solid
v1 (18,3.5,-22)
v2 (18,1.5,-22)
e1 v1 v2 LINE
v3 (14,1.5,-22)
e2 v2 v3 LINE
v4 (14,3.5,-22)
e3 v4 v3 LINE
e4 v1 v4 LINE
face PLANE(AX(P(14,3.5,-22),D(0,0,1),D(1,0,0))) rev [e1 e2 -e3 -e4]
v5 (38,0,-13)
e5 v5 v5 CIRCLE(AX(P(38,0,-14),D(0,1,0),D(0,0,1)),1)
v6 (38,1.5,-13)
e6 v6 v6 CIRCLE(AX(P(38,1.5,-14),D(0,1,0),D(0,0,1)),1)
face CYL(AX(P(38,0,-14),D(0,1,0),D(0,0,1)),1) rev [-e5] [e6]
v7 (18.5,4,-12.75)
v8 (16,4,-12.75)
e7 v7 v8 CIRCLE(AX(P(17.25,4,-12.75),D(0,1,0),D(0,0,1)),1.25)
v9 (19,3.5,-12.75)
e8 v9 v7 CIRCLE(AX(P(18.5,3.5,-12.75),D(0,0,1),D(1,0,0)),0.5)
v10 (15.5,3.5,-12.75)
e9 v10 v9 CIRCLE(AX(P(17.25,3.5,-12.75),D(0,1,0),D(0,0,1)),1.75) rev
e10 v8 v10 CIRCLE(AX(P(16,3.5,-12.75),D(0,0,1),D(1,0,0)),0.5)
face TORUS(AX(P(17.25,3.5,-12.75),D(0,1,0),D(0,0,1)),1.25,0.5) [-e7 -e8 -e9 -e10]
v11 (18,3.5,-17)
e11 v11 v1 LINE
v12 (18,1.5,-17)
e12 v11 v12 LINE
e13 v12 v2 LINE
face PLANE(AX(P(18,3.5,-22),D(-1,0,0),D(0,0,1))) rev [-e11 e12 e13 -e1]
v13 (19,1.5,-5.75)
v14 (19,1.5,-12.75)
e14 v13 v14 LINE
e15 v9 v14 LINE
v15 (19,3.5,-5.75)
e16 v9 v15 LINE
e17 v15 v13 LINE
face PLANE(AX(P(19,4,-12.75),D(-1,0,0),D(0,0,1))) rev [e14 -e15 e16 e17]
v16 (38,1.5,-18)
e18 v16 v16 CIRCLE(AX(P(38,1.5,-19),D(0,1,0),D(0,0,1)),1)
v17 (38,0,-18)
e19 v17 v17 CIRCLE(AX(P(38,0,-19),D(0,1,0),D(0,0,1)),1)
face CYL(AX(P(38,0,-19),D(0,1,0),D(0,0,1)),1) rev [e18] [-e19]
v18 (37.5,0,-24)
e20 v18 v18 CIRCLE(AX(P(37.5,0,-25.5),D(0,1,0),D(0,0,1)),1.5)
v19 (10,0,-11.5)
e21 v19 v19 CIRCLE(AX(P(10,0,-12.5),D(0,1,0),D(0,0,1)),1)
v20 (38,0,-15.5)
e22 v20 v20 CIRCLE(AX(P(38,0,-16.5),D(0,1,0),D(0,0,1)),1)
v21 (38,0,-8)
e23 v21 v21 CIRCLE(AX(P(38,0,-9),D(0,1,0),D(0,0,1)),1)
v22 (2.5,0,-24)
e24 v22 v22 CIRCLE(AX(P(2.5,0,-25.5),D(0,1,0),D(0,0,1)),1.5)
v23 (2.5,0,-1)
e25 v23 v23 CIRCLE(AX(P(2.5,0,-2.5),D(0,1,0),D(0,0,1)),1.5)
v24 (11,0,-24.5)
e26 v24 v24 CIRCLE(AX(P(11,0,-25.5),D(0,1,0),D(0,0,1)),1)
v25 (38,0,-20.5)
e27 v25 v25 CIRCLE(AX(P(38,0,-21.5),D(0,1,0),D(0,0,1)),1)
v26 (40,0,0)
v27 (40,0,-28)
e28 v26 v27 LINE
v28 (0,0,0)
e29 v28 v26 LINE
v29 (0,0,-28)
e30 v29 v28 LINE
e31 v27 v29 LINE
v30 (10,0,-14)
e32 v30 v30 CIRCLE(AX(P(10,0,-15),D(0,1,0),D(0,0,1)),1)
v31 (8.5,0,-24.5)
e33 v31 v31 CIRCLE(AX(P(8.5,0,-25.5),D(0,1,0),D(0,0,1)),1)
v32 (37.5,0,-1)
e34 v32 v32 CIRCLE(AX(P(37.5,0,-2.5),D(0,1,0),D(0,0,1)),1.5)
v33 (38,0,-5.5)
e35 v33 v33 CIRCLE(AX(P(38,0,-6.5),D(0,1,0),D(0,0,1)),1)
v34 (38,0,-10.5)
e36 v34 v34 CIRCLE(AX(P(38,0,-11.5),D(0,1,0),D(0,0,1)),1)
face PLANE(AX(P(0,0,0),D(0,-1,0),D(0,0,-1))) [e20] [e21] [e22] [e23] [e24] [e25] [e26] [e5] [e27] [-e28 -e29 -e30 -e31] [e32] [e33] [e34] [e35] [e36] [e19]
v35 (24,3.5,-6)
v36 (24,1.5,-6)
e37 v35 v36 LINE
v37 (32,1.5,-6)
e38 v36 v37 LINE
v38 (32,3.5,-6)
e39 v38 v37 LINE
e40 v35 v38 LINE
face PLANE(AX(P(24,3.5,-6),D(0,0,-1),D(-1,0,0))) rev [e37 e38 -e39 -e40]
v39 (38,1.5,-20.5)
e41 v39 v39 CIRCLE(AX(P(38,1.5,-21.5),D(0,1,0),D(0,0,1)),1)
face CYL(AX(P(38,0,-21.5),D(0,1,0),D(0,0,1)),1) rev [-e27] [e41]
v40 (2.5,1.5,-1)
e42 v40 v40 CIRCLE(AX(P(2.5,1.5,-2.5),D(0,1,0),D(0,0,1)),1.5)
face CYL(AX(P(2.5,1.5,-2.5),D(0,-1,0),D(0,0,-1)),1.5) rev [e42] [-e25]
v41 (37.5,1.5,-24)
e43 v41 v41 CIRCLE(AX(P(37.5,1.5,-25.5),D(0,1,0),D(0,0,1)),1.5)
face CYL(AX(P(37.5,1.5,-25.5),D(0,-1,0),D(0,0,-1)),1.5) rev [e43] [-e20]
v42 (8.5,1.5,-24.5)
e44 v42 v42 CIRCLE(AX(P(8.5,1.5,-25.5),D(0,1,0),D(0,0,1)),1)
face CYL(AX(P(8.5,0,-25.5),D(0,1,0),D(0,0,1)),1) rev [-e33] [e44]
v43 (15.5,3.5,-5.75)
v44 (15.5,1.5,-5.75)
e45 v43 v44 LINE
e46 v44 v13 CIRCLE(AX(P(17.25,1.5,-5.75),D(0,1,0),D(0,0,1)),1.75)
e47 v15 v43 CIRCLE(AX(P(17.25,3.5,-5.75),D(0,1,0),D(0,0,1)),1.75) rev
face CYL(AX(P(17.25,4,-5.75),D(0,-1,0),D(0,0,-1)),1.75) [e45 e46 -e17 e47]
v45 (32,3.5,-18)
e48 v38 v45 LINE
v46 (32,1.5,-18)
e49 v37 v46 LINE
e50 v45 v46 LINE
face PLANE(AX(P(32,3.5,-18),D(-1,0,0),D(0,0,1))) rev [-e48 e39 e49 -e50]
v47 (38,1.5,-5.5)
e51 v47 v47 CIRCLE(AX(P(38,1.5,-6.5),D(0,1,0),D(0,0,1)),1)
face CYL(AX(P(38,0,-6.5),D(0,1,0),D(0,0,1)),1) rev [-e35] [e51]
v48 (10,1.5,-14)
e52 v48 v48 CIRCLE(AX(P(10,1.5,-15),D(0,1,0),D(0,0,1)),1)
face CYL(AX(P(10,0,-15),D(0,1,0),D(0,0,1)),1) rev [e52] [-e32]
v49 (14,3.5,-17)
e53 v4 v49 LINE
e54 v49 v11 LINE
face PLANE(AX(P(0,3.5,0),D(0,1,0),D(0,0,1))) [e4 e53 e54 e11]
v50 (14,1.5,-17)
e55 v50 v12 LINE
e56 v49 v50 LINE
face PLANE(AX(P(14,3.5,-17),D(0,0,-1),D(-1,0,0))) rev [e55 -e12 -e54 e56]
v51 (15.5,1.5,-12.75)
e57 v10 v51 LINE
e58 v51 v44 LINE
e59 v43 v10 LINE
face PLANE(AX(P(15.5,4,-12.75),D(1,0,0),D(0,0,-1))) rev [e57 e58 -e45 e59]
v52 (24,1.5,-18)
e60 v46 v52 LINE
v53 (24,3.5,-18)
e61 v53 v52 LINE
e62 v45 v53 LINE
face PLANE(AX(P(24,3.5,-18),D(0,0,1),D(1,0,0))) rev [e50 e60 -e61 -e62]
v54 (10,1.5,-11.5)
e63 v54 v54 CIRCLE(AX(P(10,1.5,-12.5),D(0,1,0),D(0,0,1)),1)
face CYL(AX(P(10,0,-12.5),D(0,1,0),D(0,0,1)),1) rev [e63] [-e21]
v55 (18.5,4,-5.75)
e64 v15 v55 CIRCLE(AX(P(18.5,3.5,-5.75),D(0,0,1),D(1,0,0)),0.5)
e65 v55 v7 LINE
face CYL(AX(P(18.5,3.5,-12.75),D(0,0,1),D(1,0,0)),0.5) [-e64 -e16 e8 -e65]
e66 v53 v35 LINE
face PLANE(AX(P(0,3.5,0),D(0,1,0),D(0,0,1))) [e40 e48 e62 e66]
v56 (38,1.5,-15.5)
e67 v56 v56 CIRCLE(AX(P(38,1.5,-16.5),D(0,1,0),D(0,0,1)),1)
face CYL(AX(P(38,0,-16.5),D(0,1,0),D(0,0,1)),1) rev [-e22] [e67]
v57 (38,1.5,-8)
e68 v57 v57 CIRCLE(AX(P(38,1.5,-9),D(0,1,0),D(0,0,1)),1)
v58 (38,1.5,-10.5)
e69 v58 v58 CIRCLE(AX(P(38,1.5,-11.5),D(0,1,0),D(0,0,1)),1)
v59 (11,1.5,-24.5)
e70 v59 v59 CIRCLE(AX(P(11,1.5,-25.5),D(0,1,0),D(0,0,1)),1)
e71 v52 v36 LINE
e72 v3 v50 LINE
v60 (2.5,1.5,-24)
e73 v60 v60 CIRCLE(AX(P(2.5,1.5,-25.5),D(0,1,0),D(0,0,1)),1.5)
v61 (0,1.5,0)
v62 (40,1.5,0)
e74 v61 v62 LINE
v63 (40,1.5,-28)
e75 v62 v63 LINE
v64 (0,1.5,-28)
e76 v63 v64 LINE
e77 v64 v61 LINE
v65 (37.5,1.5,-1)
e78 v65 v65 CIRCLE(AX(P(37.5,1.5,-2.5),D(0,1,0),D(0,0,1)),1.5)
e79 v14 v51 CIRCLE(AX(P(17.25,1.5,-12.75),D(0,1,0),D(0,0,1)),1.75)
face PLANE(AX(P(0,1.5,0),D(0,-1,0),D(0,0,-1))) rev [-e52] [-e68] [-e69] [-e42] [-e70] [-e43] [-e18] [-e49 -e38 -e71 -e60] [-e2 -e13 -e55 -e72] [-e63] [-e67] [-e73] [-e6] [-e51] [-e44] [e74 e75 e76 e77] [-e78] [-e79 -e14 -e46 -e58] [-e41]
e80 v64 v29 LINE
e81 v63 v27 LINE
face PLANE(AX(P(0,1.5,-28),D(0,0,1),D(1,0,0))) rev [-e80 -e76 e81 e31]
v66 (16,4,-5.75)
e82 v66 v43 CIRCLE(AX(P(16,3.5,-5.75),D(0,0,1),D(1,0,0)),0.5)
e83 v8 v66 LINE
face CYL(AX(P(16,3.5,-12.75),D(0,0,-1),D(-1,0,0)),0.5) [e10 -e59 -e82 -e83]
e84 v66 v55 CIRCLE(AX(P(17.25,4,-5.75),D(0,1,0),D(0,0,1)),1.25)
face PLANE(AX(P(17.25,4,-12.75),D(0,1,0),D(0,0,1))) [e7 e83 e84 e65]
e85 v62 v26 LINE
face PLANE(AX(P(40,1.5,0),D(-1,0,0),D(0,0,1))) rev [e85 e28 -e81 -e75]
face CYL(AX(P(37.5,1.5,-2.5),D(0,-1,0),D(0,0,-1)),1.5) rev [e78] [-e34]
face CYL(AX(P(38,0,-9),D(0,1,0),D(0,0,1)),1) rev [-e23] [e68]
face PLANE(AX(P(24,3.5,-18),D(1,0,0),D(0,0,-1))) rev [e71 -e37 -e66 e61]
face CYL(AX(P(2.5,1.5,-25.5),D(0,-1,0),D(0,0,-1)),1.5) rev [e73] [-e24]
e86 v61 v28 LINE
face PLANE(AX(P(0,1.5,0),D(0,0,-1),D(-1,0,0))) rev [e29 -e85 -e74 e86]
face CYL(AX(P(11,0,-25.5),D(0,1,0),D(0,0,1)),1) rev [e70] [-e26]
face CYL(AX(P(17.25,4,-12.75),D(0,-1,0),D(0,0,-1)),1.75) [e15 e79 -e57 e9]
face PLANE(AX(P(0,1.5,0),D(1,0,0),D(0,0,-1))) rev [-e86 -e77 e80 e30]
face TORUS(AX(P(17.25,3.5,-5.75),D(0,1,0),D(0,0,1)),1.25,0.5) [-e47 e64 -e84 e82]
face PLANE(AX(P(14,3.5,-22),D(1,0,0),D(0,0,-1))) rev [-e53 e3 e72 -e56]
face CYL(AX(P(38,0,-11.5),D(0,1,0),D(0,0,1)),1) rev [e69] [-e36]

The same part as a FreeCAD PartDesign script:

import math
import FreeCAD as App
import Part
import Sketcher
from FreeCAD import Vector
Q = App.Units.Quantity


def edges_at(feature, points):
    """Names of the edges that pass closest to the given points."""
    edges = feature.Shape.Edges
    near = lambda p: min(range(len(edges)), key=lambda i: edges[i].distToShape(Part.Vertex(*p))[0])
    return sorted({f"Edge{near(p) + 1}" for p in points})

doc = App.newDocument("Part")
body = doc.addObject("PartDesign::Body", "Body")

sketch1 = doc.addObject("Sketcher::SketchObject", "Sketch")
body.addObject(sketch1)
sketch1.AttachmentSupport = (doc.XZ_Plane, [""])
sketch1.MapMode = "FlatFace"
sketch1.addGeometry([
    Part.LineSegment(Vector(0, -28, 0), Vector(0, 0, 0)),
    Part.LineSegment(Vector(0, 0, 0), Vector(40, 0, 0)),
    Part.LineSegment(Vector(40, 0, 0), Vector(40, -28, 0)),
    Part.LineSegment(Vector(40, -28, 0), Vector(0, -28, 0)),
    Part.Circle(Vector(2.5, -2.5, 0), Vector(0, 0, 1), 1.5),
    Part.Circle(Vector(37.5, -2.5, 0), Vector(0, 0, 1), 1.5),
    Part.Circle(Vector(2.5, -25.5, 0), Vector(0, 0, 1), 1.5),
    Part.Circle(Vector(37.5, -25.5, 0), Vector(0, 0, 1), 1.5),
], False)
sketch1.addConstraint([
    Sketcher.Constraint("Coincident", 0, 2, 1, 1),
    Sketcher.Constraint("Coincident", 1, 2, 2, 1),
    Sketcher.Constraint("Coincident", 2, 2, 3, 1),
    Sketcher.Constraint("Coincident", 3, 2, 0, 1),
    Sketcher.Constraint("Vertical", 0),
    Sketcher.Constraint("Horizontal", 1),
    Sketcher.Constraint("Vertical", 2),
    Sketcher.Constraint("Horizontal", 3),
    Sketcher.Constraint("Coincident", 0, 2, -1, 1),
    Sketcher.Constraint("Equal", 4, 5),
    Sketcher.Constraint("Equal", 5, 6),
    Sketcher.Constraint("Equal", 6, 7),
    Sketcher.Constraint("Horizontal", 4, 3, 5, 3),
    Sketcher.Constraint("Horizontal", 6, 3, 7, 3),
    Sketcher.Constraint("Vertical", 4, 3, 6, 3),
    Sketcher.Constraint("Vertical", 5, 3, 7, 3),
    Sketcher.Constraint("Diameter", 4, Q("3 mm")),
    Sketcher.Constraint("DistanceX", 1, 1, 1, 2, Q("40 mm")),
    Sketcher.Constraint("DistanceY", 0, 1, 0, 2, Q("28 mm")),
    Sketcher.Constraint("DistanceX", 4, 3, 5, 3, Q("35 mm")),
    Sketcher.Constraint("DistanceY", 6, 3, 4, 3, Q("23 mm")),
    Sketcher.Constraint("DistanceX", -1, 1, 4, 3, Q("2.5 mm")),
    Sketcher.Constraint("DistanceY", 4, 3, -1, 1, Q("2.5 mm")),
])
pad1 = doc.addObject("PartDesign::Pad", "Pad")
body.addObject(pad1)
pad1.Profile = sketch1
pad1.Length = 1.5
pad1.Reversed = True

sketch2 = doc.addObject("Sketcher::SketchObject", "Sketch001")
body.addObject(sketch2)
sketch2.AttachmentSupport = (doc.XZ_Plane, [""])
sketch2.MapMode = "FlatFace"
sketch2.AttachmentOffset = App.Placement(Vector(0, 0, -1.5), App.Rotation())
sketch2.addGeometry([
    Part.Circle(Vector(38, -6.5, 0), Vector(0, 0, 1), 1),
    Part.Circle(Vector(38, -9, 0), Vector(0, 0, 1), 1),
    Part.Circle(Vector(38, -11.5, 0), Vector(0, 0, 1), 1),
    Part.Circle(Vector(38, -14, 0), Vector(0, 0, 1), 1),
    Part.Circle(Vector(38, -16.5, 0), Vector(0, 0, 1), 1),
    Part.Circle(Vector(38, -19, 0), Vector(0, 0, 1), 1),
    Part.Circle(Vector(38, -21.5, 0), Vector(0, 0, 1), 1),
], False)
sketch2.addConstraint([
    Sketcher.Constraint("Equal", 0, 1),
    Sketcher.Constraint("Equal", 1, 2),
    Sketcher.Constraint("Equal", 2, 3),
    Sketcher.Constraint("Equal", 3, 4),
    Sketcher.Constraint("Equal", 4, 5),
    Sketcher.Constraint("Equal", 5, 6),
    Sketcher.Constraint("Vertical", 0, 3, 1, 3),
    Sketcher.Constraint("Vertical", 1, 3, 2, 3),
    Sketcher.Constraint("Vertical", 2, 3, 3, 3),
    Sketcher.Constraint("Vertical", 3, 3, 4, 3),
    Sketcher.Constraint("Vertical", 4, 3, 5, 3),
    Sketcher.Constraint("Vertical", 5, 3, 6, 3),
    Sketcher.Constraint("Diameter", 0, Q("2 mm")),
    Sketcher.Constraint("DistanceX", -1, 1, 0, 3, Q("38 mm")),
    Sketcher.Constraint("DistanceY", 1, 3, -1, 1, Q("9 mm")),
    Sketcher.Constraint("DistanceY", 3, 3, -1, 1, Q("14 mm")),
    Sketcher.Constraint("DistanceY", 5, 3, -1, 1, Q("19 mm")),
    Sketcher.Constraint("DistanceY", 2, 3, 0, 3, Q("5 mm")),
    Sketcher.Constraint("DistanceY", 4, 3, 2, 3, Q("5 mm")),
    Sketcher.Constraint("DistanceY", 6, 3, 4, 3, Q("5 mm")),
    Sketcher.Constraint("DistanceY", 0, 3, -1, 1, Q("6.5 mm")),
])
pocket1 = doc.addObject("PartDesign::Pocket", "Pocket")
body.addObject(pocket1)
pocket1.Profile = sketch2
pocket1.Type = "ThroughAll"
pocket1.Reversed = True

sketch3 = doc.addObject("Sketcher::SketchObject", "Sketch002")
body.addObject(sketch3)
sketch3.AttachmentSupport = (doc.XZ_Plane, [""])
sketch3.MapMode = "FlatFace"
sketch3.AttachmentOffset = App.Placement(Vector(0, 0, -1.5), App.Rotation())
sketch3.addGeometry([
    Part.LineSegment(Vector(24, -18, 0), Vector(24, -6, 0)),
    Part.LineSegment(Vector(24, -6, 0), Vector(32, -6, 0)),
    Part.LineSegment(Vector(32, -6, 0), Vector(32, -18, 0)),
    Part.LineSegment(Vector(32, -18, 0), Vector(24, -18, 0)),
], False)
sketch3.addConstraint([
    Sketcher.Constraint("Coincident", 0, 2, 1, 1),
    Sketcher.Constraint("Coincident", 1, 2, 2, 1),
    Sketcher.Constraint("Coincident", 2, 2, 3, 1),
    Sketcher.Constraint("Coincident", 3, 2, 0, 1),
    Sketcher.Constraint("Vertical", 0),
    Sketcher.Constraint("Horizontal", 1),
    Sketcher.Constraint("Vertical", 2),
    Sketcher.Constraint("Horizontal", 3),
    Sketcher.Constraint("DistanceX", 1, 1, 1, 2, Q("8 mm")),
    Sketcher.Constraint("DistanceY", 0, 1, 0, 2, Q("12 mm")),
    Sketcher.Constraint("DistanceX", -1, 1, 0, 2, Q("24 mm")),
    Sketcher.Constraint("DistanceY", 0, 2, -1, 1, Q("6 mm")),
])
pad2 = doc.addObject("PartDesign::Pad", "Pad001")
body.addObject(pad2)
pad2.Profile = sketch3
pad2.Length = 2
pad2.Reversed = True

sketch4 = doc.addObject("Sketcher::SketchObject", "Sketch003")
body.addObject(sketch4)
sketch4.AttachmentSupport = (doc.XZ_Plane, [""])
sketch4.MapMode = "FlatFace"
sketch4.AttachmentOffset = App.Placement(Vector(0, 0, -1.5), App.Rotation())
sketch4.addGeometry([
    Part.LineSegment(Vector(14, -22, 0), Vector(14, -17, 0)),
    Part.LineSegment(Vector(14, -17, 0), Vector(18, -17, 0)),
    Part.LineSegment(Vector(18, -17, 0), Vector(18, -22, 0)),
    Part.LineSegment(Vector(18, -22, 0), Vector(14, -22, 0)),
], False)
sketch4.addConstraint([
    Sketcher.Constraint("Coincident", 0, 2, 1, 1),
    Sketcher.Constraint("Coincident", 1, 2, 2, 1),
    Sketcher.Constraint("Coincident", 2, 2, 3, 1),
    Sketcher.Constraint("Coincident", 3, 2, 0, 1),
    Sketcher.Constraint("Vertical", 0),
    Sketcher.Constraint("Horizontal", 1),
    Sketcher.Constraint("Vertical", 2),
    Sketcher.Constraint("Horizontal", 3),
    Sketcher.Constraint("DistanceX", 1, 1, 1, 2, Q("4 mm")),
    Sketcher.Constraint("DistanceY", 0, 1, 0, 2, Q("5 mm")),
    Sketcher.Constraint("DistanceX", -1, 1, 0, 2, Q("14 mm")),
    Sketcher.Constraint("DistanceY", 0, 2, -1, 1, Q("17 mm")),
])
pad3 = doc.addObject("PartDesign::Pad", "Pad002")
body.addObject(pad3)
pad3.Profile = sketch4
pad3.Length = 2
pad3.Reversed = True

sketch5 = doc.addObject("Sketcher::SketchObject", "Sketch004")
body.addObject(sketch5)
sketch5.AttachmentSupport = (doc.XZ_Plane, [""])
sketch5.MapMode = "FlatFace"
sketch5.AttachmentOffset = App.Placement(Vector(0, 0, -1.5), App.Rotation())
sketch5.addGeometry([
    Part.Circle(Vector(10, -15, 0), Vector(0, 0, 1), 1),
    Part.Circle(Vector(10, -12.5, 0), Vector(0, 0, 1), 1),
    Part.Circle(Vector(8.5, -25.5, 0), Vector(0, 0, 1), 1),
    Part.Circle(Vector(11, -25.5, 0), Vector(0, 0, 1), 1),
], False)
sketch5.addConstraint([
    Sketcher.Constraint("Equal", 0, 1),
    Sketcher.Constraint("Equal", 1, 2),
    Sketcher.Constraint("Equal", 2, 3),
    Sketcher.Constraint("Horizontal", 2, 3, 3, 3),
    Sketcher.Constraint("Vertical", 0, 3, 1, 3),
    Sketcher.Constraint("Diameter", 0, Q("2 mm")),
    Sketcher.Constraint("DistanceX", -1, 1, 0, 3, Q("10 mm")),
    Sketcher.Constraint("DistanceY", 0, 3, -1, 1, Q("15 mm")),
    Sketcher.Constraint("DistanceX", -1, 1, 3, 3, Q("11 mm")),
    Sketcher.Constraint("DistanceY", 2, 3, 1, 3, Q("13 mm")),
    Sketcher.Constraint("DistanceY", 1, 3, -1, 1, Q("12.5 mm")),
    Sketcher.Constraint("DistanceX", -1, 1, 2, 3, Q("8.5 mm")),
])
pocket2 = doc.addObject("PartDesign::Pocket", "Pocket001")
body.addObject(pocket2)
pocket2.Profile = sketch5
pocket2.Type = "ThroughAll"
pocket2.Reversed = True

sketch6 = doc.addObject("Sketcher::SketchObject", "Sketch005")
body.addObject(sketch6)
sketch6.AttachmentSupport = (doc.XZ_Plane, [""])
sketch6.MapMode = "FlatFace"
sketch6.AttachmentOffset = App.Placement(Vector(0, 0, -1.5), App.Rotation())
sketch6.addGeometry([
    Part.LineSegment(Vector(19, -5.8, 0), Vector(19, -12.8, 0)),
    Part.ArcOfCircle(Part.Circle(Vector(17.2, -12.8, 0), Vector(0, 0, 1), 1.8), math.radians(180), math.radians(360)),
    Part.LineSegment(Vector(15.5, -12.8, 0), Vector(15.5, -5.8, 0)),
    Part.ArcOfCircle(Part.Circle(Vector(17.2, -5.8, 0), Vector(0, 0, 1), 1.8), math.radians(0), math.radians(180)),
], False)
sketch6.addConstraint([
    Sketcher.Constraint("Tangent", 0, 2, 1, 2),
    Sketcher.Constraint("Tangent", 1, 1, 2, 1),
    Sketcher.Constraint("Tangent", 2, 2, 3, 2),
    Sketcher.Constraint("Tangent", 3, 1, 0, 1),
    Sketcher.Constraint("Vertical", 0),
    Sketcher.Constraint("Vertical", 2),
    Sketcher.Constraint("DistanceY", 0, 2, 0, 1, Q("7 mm")),
    Sketcher.Constraint("Radius", 1, Q("1.75 mm")),
    Sketcher.Constraint("DistanceX", -1, 1, 0, 2, Q("19 mm")),
    Sketcher.Constraint("DistanceY", 1, 3, -1, 1, Q("12.75 mm")),
])
pad4 = doc.addObject("PartDesign::Pad", "Pad003")
body.addObject(pad4)
pad4.Profile = sketch6
pad4.Length = 2.5
pad4.Reversed = True
doc.recompute()

fillet = doc.addObject("PartDesign::Fillet", "Fillet")
body.addObject(fillet)
fillet.Base = (pad4, edges_at(pad4, [
    (17.25, 4, -14.5),
    (15.5, 4, -9.25),
    (17.25, 4, -4),
    (19, 4, -9.25),
]))
fillet.Radius = 0.5

doc.recompute()
